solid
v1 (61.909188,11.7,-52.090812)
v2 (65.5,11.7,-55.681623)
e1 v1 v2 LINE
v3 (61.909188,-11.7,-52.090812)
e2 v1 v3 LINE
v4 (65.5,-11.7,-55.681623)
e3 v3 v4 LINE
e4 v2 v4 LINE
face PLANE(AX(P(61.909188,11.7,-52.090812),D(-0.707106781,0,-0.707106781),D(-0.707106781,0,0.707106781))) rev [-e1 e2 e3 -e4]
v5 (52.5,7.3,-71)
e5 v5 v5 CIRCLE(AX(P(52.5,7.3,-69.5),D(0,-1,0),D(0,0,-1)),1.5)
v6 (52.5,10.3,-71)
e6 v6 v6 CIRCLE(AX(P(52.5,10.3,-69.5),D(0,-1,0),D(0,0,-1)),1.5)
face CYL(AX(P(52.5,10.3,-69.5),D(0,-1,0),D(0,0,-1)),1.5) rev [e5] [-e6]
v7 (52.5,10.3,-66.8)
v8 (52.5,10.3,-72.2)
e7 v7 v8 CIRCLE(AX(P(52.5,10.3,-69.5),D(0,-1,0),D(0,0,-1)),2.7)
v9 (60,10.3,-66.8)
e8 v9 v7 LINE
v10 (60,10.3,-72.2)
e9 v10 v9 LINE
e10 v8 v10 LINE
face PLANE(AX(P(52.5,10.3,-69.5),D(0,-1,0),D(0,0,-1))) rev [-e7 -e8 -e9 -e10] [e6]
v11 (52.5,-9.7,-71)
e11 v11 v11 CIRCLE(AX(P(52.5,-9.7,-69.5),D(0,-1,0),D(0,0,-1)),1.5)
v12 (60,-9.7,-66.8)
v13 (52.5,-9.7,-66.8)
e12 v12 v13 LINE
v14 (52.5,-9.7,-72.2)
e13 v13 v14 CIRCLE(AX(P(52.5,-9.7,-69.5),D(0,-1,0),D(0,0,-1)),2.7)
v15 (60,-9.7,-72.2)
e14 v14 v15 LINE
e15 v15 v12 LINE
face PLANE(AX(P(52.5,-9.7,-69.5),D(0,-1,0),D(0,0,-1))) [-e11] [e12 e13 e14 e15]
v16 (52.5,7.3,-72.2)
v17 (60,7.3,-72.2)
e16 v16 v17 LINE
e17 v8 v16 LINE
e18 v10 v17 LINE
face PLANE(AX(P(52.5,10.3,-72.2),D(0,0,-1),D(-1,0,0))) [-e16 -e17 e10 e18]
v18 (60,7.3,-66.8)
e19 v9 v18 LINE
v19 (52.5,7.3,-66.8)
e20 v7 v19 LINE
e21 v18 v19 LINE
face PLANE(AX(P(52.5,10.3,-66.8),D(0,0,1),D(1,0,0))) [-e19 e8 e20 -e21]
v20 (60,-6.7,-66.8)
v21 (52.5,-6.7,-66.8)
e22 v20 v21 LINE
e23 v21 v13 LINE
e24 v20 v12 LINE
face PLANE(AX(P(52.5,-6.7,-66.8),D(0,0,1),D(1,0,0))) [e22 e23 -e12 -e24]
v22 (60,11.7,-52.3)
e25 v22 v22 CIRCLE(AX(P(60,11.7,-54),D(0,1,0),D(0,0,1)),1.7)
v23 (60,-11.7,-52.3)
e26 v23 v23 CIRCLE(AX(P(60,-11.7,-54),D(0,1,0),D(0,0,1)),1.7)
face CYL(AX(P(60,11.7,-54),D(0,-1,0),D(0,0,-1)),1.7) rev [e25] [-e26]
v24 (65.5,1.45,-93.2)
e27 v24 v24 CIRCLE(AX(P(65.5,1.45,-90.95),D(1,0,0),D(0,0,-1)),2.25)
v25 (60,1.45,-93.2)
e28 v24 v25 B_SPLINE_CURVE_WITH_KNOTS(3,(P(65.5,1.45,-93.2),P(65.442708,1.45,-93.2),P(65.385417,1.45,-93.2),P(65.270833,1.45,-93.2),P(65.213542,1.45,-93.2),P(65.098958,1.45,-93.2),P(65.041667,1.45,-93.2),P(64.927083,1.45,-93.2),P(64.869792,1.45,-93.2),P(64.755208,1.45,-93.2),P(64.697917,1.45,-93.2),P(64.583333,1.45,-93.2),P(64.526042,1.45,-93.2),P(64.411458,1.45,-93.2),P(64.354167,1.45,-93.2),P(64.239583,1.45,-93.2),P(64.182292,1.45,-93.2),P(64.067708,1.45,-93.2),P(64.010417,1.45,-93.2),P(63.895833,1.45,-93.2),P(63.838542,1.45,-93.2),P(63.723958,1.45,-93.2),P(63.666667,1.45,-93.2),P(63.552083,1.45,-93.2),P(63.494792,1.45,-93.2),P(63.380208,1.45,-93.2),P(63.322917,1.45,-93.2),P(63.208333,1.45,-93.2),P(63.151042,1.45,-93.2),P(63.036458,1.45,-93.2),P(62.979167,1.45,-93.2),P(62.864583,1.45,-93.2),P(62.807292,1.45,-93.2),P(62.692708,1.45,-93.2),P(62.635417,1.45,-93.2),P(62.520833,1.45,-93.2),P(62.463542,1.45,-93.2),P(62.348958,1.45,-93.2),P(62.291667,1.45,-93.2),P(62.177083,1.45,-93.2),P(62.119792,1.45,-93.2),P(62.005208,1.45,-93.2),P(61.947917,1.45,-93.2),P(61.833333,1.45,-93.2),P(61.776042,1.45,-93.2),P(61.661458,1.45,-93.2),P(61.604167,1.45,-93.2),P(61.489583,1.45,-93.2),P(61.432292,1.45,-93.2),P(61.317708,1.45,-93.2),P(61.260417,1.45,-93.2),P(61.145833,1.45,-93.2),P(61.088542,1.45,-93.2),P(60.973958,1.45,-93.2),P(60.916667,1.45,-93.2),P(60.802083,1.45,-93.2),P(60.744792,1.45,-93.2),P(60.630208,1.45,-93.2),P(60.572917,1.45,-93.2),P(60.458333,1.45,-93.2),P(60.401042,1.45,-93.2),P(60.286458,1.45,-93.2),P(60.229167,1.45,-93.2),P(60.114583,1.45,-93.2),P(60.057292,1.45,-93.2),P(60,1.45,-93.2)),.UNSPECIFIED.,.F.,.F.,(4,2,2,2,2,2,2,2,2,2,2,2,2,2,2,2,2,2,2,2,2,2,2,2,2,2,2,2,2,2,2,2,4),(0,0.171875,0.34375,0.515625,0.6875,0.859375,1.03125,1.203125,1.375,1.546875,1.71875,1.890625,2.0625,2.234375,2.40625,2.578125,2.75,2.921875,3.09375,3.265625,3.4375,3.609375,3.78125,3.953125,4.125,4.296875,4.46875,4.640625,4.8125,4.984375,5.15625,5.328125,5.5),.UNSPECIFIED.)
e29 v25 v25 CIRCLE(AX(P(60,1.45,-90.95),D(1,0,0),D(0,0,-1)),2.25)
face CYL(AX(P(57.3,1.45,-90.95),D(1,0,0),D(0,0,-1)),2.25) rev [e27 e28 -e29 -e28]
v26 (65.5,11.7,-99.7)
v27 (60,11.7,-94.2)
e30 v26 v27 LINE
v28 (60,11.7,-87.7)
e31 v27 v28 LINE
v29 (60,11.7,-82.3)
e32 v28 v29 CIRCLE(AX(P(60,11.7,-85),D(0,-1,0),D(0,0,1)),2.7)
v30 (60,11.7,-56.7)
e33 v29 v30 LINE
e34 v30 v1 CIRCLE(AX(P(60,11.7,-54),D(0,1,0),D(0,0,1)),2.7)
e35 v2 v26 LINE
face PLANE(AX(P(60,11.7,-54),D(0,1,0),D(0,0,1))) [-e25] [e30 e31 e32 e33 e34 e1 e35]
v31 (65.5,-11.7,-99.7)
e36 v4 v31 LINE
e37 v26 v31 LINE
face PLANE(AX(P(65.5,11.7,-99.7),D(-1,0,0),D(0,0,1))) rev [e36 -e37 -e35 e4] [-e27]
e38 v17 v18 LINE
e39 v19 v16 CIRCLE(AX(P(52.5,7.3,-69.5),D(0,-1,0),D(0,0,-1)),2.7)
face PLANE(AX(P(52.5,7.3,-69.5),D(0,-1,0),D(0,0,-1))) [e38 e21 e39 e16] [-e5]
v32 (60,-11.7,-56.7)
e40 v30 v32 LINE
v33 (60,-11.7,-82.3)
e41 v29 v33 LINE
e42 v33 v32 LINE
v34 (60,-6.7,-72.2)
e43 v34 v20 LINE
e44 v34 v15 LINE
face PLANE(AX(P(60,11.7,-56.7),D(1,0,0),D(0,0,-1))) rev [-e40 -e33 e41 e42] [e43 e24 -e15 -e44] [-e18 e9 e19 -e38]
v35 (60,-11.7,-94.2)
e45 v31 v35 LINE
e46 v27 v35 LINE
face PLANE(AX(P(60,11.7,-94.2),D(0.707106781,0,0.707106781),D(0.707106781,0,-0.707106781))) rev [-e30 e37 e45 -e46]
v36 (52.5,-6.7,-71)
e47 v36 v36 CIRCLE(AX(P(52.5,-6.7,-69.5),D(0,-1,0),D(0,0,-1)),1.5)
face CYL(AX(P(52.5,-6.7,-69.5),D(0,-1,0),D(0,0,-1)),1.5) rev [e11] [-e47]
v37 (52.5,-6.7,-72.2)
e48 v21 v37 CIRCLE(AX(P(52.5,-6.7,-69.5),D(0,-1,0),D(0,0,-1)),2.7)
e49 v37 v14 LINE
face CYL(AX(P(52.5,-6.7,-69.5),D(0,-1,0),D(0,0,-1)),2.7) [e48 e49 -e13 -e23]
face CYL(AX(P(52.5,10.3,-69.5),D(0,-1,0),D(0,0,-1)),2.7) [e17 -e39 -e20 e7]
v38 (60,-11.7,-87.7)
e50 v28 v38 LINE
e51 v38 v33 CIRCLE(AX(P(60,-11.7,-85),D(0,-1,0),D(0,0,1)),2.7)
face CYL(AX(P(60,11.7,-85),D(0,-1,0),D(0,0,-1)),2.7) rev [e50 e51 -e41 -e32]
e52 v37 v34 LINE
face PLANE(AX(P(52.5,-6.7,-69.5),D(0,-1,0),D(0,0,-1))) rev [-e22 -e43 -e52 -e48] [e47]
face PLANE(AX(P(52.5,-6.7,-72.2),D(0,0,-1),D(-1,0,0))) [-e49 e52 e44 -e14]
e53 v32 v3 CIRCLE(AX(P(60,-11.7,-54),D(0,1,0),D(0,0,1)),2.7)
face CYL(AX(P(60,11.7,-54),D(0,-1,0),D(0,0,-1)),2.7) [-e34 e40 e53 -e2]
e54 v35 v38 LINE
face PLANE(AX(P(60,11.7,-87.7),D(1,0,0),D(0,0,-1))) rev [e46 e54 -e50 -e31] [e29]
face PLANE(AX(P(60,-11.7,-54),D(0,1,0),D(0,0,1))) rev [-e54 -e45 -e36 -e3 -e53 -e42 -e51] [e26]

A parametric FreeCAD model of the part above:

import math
import FreeCAD as App
import Part
import Sketcher
Q = App.Units.Quantity

doc = App.newDocument("Part")
body = doc.addObject("PartDesign::Body", "Body")

# Sketch on XZ plane
sketch1 = body.newObject("Sketcher::SketchObject", "Sketch")
sketch1.AttachmentSupport = (doc.getObject("XZ_Plane"), [""])
sketch1.MapMode = "FlatFace"
sketch1.addGeometry(Part.LineSegment(App.Vector(65.5, -99.7, 0), App.Vector(60, -94.2, 0)), False)
sketch1.addGeometry(Part.LineSegment(App.Vector(60, -94.2, 0), App.Vector(60, -87.7, 0)), False)
sketch1.addGeometry(Part.ArcOfCircle(Part.Circle(App.Vector(60, -85, 0), App.Vector(0, 0, 1), 2.7), math.radians(-90), math.radians(90)), False)
sketch1.addGeometry(Part.LineSegment(App.Vector(60, -82.3, 0), App.Vector(60, -56.7, 0)), False)
sketch1.addGeometry(Part.ArcOfCircle(Part.Circle(App.Vector(60, -54, 0), App.Vector(0, 0, 1), 2.7), math.radians(45), math.radians(270)), False)
sketch1.addGeometry(Part.LineSegment(App.Vector(61.9, -52.1, 0), App.Vector(65.5, -55.7, 0)), False)
sketch1.addGeometry(Part.LineSegment(App.Vector(65.5, -55.7, 0), App.Vector(65.5, -99.7, 0)), False)
sketch1.addGeometry(Part.Circle(App.Vector(60, -54, 0), App.Vector(0, 0, 1), 1.7), False)
sketch1.addConstraint(Sketcher.Constraint("Coincident", 0, 2, 1, 1))
sketch1.addConstraint(Sketcher.Constraint("Coincident", 1, 2, 2, 1))
sketch1.addConstraint(Sketcher.Constraint("Coincident", 2, 2, 3, 1))
sketch1.addConstraint(Sketcher.Constraint("Coincident", 3, 2, 4, 2))
sketch1.addConstraint(Sketcher.Constraint("Tangent", 4, 1, 5, 1))
sketch1.addConstraint(Sketcher.Constraint("Coincident", 5, 2, 6, 1))
sketch1.addConstraint(Sketcher.Constraint("Coincident", 6, 2, 0, 1))
sketch1.addConstraint(Sketcher.Constraint("Vertical", 1))
sketch1.addConstraint(Sketcher.Constraint("Vertical", 3))
sketch1.addConstraint(Sketcher.Constraint("Vertical", 6))
sketch1.addConstraint(Sketcher.Constraint("Coincident", 7, 3, 4, 3))
sketch1.addConstraint(Sketcher.Constraint("Equal", 2, 4))
sketch1.addConstraint(Sketcher.Constraint("Parallel", 0, 5))
sketch1.addConstraint(Sketcher.Constraint("Vertical", 2, 3, 4, 3))
sketch1.addConstraint(Sketcher.Constraint("Vertical", 7, 3, 0, 2))
sketch1.addConstraint(Sketcher.Constraint("Vertical", 1, 2, 2, 2))
sketch1.addConstraint(Sketcher.Constraint("Diameter", 7, 3.4))
sketch1.addConstraint(Sketcher.Constraint("Radius", 2, 2.7))
sketch1.addConstraint(Sketcher.Constraint("Angle", 0, Q("135 deg")))
sketch1.addConstraint(Sketcher.Constraint("DistanceY", 1, 1, 1, 2, 6.5))
sketch1.addConstraint(Sketcher.Constraint("DistanceY", 3, 1, 3, 2, 25.6))
sketch1.addConstraint(Sketcher.Constraint("DistanceX", -1, 1, 2, 3, 60.0))
sketch1.addConstraint(Sketcher.Constraint("DistanceY", 2, 3, -1, 1, 85.0))
sketch1.addConstraint(Sketcher.Constraint("DistanceY", 6, 2, 1, 2, 12.0))
pad1 = body.newObject("PartDesign::Pad", "Pad")
pad1.Profile = sketch1
pad1.Length = 23.4
pad1.Midplane = True

# Sketch on YZ plane
sketch2 = body.newObject("Sketcher::SketchObject", "Sketch001")
sketch2.AttachmentSupport = (doc.getObject("YZ_Plane"), [""])
sketch2.MapMode = "FlatFace"
sketch2.AttachmentOffset = App.Placement(App.Vector(0, 0, 65.5), App.Rotation())
sketch2.addGeometry(Part.Circle(App.Vector(1.4, -91, 0), App.Vector(0, 0, 1), 2.2), False)
sketch2.addConstraint(Sketcher.Constraint("Diameter", 0, 4.5))
sketch2.addConstraint(Sketcher.Constraint("DistanceX", -1, 1, 0, 3, 1.45))
sketch2.addConstraint(Sketcher.Constraint("DistanceY", 0, 3, -1, 1, 90.95))
pocket1 = body.newObject("PartDesign::Pocket", "Pocket")
pocket1.Profile = sketch2
pocket1.Type = "ThroughAll"

# Sketch on XZ plane
sketch3 = body.newObject("Sketcher::SketchObject", "Sketch002")
sketch3.AttachmentSupport = (doc.getObject("XZ_Plane"), [""])
sketch3.MapMode = "FlatFace"
sketch3.AttachmentOffset = App.Placement(App.Vector(0, 0, 9.7), App.Rotation())
sketch3.addGeometry(Part.LineSegment(App.Vector(60, -66.8, 0), App.Vector(52.5, -66.8, 0)), False)
sketch3.addGeometry(Part.ArcOfCircle(Part.Circle(App.Vector(52.5, -69.5, 0), App.Vector(0, 0, 1), 2.7), math.radians(90), math.radians(270)), False)
sketch3.addGeometry(Part.LineSegment(App.Vector(52.5, -72.2, 0), App.Vector(60, -72.2, 0)), False)
sketch3.addGeometry(Part.LineSegment(App.Vector(60, -72.2, 0), App.Vector(60, -66.8, 0)), False)
sketch3.addGeometry(Part.Circle(App.Vector(52.5, -69.5, 0), App.Vector(0, 0, 1), 1.5), False)
sketch3.addConstraint(Sketcher.Constraint("Tangent", 0, 2, 1, 1))
sketch3.addConstraint(Sketcher.Constraint("Tangent", 1, 2, 2, 1))
sketch3.addConstraint(Sketcher.Constraint("Coincident", 2, 2, 3, 1))
sketch3.addConstraint(Sketcher.Constraint("Coincident", 3, 2, 0, 1))
sketch3.addConstraint(Sketcher.Constraint("Horizontal", 0))
sketch3.addConstraint(Sketcher.Constraint("Horizontal", 2))
sketch3.addConstraint(Sketcher.Constraint("Vertical", 3))
sketch3.addConstraint(Sketcher.Constraint("Coincident", 4, 3, 1, 3))
sketch3.addConstraint(Sketcher.Constraint("Diameter", 4, 3.0))
sketch3.addConstraint(Sketcher.Constraint("Radius", 1, 2.7))
sketch3.addConstraint(Sketcher.Constraint("DistanceX", 0, 2, 0, 1, 7.5))
sketch3.addConstraint(Sketcher.Constraint("DistanceX", -1, 1, 2, 2, 60.0))
sketch3.addConstraint(Sketcher.Constraint("DistanceY", 1, 3, -1, 1, 69.5))
pad2 = body.newObject("PartDesign::Pad", "Pad001")
pad2.Profile = sketch3
pad2.Length = 3
pad2.Reversed = True

# Sketch on XZ plane
sketch4 = body.newObject("Sketcher::SketchObject", "Sketch003")
sketch4.AttachmentSupport = (doc.getObject("XZ_Plane"), [""])
sketch4.MapMode = "FlatFace"
sketch4.AttachmentOffset = App.Placement(App.Vector(0, 0, -7.3), App.Rotation())
sketch4.addGeometry(Part.LineSegment(App.Vector(60, -66.8, 0), App.Vector(52.5, -66.8, 0)), False)
sketch4.addGeometry(Part.ArcOfCircle(Part.Circle(App.Vector(52.5, -69.5, 0), App.Vector(0, 0, 1), 2.7), math.radians(90), math.radians(270)), False)
sketch4.addGeometry(Part.LineSegment(App.Vector(52.5, -72.2, 0), App.Vector(60, -72.2, 0)), False)
sketch4.addGeometry(Part.LineSegment(App.Vector(60, -72.2, 0), App.Vector(60, -66.8, 0)), False)
sketch4.addGeometry(Part.Circle(App.Vector(52.5, -69.5, 0), App.Vector(0, 0, 1), 1.5), False)
sketch4.addConstraint(Sketcher.Constraint("Tangent", 0, 2, 1, 1))
sketch4.addConstraint(Sketcher.Constraint("Tangent", 1, 2, 2, 1))
sketch4.addConstraint(Sketcher.Constraint("Coincident", 2, 2, 3, 1))
sketch4.addConstraint(Sketcher.Constraint("Coincident", 3, 2, 0, 1))
sketch4.addConstraint(Sketcher.Constraint("Horizontal", 0))
sketch4.addConstraint(Sketcher.Constraint("Horizontal", 2))
sketch4.addConstraint(Sketcher.Constraint("Vertical", 3))
sketch4.addConstraint(Sketcher.Constraint("Coincident", 4, 3, 1, 3))
sketch4.addConstraint(Sketcher.Constraint("Diameter", 4, 3.0))
sketch4.addConstraint(Sketcher.Constraint("Radius", 1, 2.7))
sketch4.addConstraint(Sketcher.Constraint("DistanceX", 0, 2, 0, 1, 7.5))
sketch4.addConstraint(Sketcher.Constraint("DistanceX", -1, 1, 2, 2, 60.0))
sketch4.addConstraint(Sketcher.Constraint("DistanceY", 1, 3, -1, 1, 69.5))
pad3 = body.newObject("PartDesign::Pad", "Pad002")
pad3.Profile = sketch4
pad3.Length = 3
pad3.Reversed = True

doc.recompute()
